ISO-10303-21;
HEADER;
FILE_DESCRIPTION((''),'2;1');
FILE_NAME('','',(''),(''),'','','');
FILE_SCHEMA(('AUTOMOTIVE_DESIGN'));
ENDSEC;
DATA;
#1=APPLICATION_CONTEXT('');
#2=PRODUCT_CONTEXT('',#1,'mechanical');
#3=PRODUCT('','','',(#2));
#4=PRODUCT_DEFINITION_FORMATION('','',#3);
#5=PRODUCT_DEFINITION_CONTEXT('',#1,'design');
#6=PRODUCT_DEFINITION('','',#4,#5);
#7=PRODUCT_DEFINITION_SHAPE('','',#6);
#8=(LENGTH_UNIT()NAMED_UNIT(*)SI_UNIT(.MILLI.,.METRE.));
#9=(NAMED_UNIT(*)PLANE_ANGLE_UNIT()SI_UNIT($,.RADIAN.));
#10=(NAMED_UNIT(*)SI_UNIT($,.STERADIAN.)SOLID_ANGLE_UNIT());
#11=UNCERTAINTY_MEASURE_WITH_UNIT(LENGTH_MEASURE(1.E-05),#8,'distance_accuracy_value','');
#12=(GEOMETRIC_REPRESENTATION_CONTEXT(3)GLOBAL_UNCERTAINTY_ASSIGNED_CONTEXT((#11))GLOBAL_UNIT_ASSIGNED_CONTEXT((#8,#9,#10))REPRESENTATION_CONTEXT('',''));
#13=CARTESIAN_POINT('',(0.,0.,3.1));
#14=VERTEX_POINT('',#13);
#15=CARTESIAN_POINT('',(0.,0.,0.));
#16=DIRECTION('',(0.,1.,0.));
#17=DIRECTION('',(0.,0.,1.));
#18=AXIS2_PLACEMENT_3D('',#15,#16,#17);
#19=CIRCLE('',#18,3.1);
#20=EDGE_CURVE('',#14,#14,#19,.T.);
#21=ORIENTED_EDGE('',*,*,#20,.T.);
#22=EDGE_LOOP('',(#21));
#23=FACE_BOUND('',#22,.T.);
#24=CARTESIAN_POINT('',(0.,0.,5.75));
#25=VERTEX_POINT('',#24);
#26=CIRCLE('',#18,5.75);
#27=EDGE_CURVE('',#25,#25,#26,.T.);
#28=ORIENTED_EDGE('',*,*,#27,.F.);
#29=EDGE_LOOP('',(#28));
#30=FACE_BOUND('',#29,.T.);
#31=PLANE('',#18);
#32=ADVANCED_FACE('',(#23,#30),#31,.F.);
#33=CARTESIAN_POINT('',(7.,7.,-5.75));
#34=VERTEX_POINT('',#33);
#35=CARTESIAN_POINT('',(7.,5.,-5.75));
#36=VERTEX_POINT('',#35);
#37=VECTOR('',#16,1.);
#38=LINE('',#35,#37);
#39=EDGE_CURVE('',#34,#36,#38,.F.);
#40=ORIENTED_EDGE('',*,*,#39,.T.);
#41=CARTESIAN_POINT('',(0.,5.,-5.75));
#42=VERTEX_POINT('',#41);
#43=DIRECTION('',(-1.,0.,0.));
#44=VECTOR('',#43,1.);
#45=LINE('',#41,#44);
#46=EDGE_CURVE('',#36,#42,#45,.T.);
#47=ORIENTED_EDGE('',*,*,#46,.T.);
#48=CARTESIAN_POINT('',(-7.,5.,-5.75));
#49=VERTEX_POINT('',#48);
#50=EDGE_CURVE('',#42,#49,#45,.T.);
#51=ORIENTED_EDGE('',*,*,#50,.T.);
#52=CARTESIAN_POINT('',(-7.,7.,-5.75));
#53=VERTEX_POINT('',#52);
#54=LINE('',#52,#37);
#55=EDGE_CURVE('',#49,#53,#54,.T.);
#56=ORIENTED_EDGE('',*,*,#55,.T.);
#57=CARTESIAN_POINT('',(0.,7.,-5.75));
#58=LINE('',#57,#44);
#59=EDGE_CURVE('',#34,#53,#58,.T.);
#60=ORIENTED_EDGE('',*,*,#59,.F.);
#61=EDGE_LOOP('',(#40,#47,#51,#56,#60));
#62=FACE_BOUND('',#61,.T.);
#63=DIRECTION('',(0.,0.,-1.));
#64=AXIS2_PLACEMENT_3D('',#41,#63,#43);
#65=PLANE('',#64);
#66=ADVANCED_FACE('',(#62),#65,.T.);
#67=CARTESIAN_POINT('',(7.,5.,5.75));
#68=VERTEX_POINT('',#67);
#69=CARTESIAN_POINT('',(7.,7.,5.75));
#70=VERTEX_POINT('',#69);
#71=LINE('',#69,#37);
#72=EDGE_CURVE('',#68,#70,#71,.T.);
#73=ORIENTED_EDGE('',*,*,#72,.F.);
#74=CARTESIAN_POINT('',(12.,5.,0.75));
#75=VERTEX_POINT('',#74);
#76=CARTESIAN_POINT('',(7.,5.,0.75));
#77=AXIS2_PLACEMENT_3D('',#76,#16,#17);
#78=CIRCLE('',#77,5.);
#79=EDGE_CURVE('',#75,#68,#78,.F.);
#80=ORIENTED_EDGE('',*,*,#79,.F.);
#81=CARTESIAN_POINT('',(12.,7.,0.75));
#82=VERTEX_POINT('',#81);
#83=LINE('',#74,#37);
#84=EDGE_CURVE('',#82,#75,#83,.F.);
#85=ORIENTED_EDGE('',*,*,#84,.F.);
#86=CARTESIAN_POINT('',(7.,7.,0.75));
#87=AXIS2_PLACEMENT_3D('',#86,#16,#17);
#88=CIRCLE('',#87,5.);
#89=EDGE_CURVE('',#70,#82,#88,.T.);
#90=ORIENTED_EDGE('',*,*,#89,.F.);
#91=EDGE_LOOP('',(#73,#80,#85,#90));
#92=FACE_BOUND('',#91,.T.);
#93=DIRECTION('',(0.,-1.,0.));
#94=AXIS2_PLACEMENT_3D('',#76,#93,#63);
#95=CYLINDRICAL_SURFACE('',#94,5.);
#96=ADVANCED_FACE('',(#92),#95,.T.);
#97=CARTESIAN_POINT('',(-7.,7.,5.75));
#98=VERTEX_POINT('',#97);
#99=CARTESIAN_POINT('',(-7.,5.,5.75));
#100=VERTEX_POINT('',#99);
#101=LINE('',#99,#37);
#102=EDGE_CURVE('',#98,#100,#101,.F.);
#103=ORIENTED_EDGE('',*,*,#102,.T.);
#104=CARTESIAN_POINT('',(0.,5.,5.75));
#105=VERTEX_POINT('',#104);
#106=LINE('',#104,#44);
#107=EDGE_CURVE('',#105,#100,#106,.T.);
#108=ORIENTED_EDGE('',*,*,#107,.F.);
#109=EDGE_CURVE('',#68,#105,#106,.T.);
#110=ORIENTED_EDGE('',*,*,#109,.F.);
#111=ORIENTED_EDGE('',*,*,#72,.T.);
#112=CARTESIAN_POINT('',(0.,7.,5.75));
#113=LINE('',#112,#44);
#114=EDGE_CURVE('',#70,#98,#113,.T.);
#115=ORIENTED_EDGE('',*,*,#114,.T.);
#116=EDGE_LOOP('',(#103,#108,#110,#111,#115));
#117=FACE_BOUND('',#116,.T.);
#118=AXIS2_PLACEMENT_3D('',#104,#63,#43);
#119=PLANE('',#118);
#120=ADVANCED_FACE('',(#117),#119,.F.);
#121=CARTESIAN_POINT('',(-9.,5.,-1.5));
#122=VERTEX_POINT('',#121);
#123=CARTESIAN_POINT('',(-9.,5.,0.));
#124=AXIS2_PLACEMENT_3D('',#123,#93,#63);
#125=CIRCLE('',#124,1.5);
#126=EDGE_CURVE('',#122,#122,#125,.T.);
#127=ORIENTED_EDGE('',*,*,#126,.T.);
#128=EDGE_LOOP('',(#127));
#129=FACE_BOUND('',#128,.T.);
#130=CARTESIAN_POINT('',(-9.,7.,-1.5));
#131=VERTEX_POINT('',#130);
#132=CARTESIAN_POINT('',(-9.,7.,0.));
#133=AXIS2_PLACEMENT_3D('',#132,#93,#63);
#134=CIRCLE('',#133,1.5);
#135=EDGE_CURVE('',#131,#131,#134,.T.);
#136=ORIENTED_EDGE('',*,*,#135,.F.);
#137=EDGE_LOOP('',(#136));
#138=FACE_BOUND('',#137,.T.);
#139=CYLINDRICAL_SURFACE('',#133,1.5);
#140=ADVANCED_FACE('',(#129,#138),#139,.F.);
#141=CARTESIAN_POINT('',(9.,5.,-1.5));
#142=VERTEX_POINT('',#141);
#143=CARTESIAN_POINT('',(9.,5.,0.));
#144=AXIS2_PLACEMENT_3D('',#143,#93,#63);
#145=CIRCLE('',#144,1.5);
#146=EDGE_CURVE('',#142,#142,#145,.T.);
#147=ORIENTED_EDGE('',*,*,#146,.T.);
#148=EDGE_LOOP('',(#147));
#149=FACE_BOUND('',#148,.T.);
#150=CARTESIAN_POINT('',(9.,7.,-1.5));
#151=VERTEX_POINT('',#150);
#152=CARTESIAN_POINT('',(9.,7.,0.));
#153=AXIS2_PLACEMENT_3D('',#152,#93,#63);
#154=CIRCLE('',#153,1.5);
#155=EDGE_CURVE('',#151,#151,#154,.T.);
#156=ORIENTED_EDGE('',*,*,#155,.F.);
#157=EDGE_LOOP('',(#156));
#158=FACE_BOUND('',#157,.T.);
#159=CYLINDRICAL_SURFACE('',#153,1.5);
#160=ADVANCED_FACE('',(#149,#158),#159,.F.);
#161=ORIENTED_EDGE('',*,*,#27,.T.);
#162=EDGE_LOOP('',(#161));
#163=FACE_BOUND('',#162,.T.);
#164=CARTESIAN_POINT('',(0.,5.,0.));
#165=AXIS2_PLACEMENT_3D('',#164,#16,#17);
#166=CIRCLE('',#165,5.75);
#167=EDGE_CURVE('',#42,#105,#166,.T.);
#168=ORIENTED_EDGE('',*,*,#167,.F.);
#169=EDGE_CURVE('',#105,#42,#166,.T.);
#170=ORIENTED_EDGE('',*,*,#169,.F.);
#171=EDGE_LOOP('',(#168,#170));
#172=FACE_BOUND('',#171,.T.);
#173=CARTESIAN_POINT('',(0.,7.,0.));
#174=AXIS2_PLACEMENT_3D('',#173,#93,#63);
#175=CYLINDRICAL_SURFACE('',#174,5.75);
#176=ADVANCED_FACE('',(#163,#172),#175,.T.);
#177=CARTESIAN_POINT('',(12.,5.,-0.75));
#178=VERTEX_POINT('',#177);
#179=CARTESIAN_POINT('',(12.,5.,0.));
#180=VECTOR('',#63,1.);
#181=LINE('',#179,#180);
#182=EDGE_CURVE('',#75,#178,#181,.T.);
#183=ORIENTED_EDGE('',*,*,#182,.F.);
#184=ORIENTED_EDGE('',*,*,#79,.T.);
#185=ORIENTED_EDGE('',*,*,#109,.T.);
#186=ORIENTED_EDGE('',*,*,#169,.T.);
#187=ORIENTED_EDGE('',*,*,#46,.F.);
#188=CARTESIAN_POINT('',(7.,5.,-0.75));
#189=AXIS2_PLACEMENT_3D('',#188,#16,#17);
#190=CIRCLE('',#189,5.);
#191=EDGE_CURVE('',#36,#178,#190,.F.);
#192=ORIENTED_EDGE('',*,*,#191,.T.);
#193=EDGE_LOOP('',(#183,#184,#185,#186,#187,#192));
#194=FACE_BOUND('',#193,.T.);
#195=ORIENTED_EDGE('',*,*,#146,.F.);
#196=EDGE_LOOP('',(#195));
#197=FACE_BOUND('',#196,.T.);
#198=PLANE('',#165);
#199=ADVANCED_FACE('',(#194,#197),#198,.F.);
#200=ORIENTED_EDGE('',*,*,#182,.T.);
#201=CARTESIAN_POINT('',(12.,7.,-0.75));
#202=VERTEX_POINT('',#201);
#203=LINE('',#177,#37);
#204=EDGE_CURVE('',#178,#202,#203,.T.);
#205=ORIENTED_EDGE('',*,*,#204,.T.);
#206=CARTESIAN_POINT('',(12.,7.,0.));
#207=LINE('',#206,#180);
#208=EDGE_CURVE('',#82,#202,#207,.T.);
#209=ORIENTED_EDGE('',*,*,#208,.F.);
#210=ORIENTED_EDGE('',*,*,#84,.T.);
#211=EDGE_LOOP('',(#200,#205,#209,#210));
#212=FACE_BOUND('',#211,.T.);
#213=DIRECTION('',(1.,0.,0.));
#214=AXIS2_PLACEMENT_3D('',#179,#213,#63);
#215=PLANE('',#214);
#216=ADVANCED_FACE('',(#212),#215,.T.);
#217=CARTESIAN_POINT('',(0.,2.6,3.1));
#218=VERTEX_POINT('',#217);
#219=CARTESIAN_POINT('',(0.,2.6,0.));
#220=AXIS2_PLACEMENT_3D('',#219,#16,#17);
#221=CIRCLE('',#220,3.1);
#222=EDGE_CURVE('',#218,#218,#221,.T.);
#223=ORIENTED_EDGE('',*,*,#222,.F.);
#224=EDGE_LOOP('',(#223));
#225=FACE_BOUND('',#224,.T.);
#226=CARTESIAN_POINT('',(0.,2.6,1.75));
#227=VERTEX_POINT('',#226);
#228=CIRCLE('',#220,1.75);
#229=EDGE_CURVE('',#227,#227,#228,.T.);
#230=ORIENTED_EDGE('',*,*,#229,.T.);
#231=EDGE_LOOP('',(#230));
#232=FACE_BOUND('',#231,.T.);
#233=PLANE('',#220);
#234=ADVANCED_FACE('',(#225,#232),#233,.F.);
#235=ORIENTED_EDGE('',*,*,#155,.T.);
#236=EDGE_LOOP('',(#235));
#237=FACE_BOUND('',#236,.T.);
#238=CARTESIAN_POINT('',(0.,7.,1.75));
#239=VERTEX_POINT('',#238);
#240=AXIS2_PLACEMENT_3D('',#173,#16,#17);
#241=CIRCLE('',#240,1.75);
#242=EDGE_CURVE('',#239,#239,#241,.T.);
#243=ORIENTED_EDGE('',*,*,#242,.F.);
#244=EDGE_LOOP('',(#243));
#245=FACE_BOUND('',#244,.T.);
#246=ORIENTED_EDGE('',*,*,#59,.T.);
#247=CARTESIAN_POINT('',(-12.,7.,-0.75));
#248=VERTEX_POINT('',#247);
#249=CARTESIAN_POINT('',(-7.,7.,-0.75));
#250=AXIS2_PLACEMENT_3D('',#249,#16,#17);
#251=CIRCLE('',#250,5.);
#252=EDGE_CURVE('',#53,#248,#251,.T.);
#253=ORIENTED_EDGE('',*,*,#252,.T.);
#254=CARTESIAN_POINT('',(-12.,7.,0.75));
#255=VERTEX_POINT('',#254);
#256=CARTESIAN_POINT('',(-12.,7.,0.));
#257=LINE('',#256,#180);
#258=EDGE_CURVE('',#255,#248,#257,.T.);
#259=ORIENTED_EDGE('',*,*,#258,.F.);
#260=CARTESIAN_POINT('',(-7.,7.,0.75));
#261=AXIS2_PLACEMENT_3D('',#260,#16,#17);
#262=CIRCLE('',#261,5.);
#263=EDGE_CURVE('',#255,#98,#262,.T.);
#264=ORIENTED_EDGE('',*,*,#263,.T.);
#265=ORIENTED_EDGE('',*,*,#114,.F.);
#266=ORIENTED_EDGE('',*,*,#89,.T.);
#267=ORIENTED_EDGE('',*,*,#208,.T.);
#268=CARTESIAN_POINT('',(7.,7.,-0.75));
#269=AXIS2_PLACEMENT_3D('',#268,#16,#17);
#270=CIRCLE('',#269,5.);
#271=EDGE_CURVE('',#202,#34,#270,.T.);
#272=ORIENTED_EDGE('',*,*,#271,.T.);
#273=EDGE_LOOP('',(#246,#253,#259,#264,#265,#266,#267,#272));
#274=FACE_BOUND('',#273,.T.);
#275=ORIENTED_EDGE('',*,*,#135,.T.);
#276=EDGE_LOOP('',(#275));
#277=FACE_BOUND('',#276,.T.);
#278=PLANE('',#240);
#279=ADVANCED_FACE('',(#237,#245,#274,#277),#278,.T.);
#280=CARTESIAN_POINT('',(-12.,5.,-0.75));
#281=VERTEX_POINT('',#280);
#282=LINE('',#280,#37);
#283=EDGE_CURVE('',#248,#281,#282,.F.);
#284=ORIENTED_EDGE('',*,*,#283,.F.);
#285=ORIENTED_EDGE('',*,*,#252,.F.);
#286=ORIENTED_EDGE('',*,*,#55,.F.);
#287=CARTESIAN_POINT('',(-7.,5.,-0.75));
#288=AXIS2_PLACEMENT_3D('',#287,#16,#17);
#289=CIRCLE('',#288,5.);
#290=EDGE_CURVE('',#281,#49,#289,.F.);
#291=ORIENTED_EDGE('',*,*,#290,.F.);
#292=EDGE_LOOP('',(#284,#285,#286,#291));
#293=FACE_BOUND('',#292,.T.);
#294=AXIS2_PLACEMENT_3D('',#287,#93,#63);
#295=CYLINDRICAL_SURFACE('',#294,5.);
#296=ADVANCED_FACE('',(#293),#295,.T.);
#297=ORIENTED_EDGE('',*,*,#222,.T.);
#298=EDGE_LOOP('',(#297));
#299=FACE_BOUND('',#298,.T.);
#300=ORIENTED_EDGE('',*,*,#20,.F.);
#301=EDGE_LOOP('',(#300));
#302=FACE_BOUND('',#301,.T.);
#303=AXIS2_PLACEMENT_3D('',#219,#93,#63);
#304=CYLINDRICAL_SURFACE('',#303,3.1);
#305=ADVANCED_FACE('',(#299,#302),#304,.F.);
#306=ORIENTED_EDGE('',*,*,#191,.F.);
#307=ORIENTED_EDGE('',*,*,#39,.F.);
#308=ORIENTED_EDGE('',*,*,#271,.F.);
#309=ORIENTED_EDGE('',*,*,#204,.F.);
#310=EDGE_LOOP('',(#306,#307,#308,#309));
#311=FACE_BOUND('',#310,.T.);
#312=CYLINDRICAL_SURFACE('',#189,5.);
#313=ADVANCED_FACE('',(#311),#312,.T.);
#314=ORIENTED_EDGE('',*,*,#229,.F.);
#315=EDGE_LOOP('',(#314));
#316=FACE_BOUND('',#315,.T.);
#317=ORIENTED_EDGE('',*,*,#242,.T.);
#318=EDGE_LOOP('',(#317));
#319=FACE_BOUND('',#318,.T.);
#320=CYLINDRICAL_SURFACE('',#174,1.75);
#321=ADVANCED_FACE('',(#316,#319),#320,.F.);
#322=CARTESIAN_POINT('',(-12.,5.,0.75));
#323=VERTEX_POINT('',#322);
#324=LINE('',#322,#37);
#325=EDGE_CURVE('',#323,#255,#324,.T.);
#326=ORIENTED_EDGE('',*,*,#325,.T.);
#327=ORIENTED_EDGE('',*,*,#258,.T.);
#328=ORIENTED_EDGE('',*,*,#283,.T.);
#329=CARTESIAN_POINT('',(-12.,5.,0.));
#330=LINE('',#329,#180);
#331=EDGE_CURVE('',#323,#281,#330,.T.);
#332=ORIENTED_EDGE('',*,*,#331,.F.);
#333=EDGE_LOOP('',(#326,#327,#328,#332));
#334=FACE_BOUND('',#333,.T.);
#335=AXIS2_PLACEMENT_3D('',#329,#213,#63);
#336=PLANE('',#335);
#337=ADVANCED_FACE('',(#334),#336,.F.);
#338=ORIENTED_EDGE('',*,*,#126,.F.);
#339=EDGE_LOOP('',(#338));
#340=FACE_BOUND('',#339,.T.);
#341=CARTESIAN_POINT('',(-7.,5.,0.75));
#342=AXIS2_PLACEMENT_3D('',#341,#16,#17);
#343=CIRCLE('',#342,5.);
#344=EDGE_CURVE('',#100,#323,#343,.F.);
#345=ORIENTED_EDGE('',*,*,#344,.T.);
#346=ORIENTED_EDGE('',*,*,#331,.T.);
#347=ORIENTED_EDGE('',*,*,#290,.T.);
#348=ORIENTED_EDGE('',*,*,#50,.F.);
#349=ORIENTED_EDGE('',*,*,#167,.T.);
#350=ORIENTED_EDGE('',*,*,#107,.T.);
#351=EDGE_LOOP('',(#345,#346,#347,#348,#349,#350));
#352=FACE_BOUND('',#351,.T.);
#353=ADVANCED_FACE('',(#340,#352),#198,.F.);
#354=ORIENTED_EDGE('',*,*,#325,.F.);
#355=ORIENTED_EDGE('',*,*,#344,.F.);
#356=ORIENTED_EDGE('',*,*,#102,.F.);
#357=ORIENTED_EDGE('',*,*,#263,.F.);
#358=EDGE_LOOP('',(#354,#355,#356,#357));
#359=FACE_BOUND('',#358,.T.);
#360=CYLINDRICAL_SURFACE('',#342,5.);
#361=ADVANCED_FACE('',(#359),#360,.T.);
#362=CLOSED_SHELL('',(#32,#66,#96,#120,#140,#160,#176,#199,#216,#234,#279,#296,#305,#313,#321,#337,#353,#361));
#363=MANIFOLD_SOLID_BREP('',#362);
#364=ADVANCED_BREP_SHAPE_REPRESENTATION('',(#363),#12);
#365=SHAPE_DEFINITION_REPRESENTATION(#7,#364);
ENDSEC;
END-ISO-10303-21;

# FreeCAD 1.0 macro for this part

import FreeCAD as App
import Part
import Sketcher
from FreeCAD import Vector
Q = App.Units.Quantity


def edges_at(feature, points):
    """Names of the edges that pass closest to the given points."""
    edges = feature.Shape.Edges
    near = lambda p: min(range(len(edges)), key=lambda i: edges[i].distToShape(Part.Vertex(*p))[0])
    return sorted({f"Edge{near(p) + 1}" for p in points})


def add_polygon(sketch, points):
    """Adds a closed chain of lines whose ends are joined by coincident constraints."""
    first, n = sketch.GeometryCount, len(points)
    for a, b in zip(points, points[1:] + points[:1]):
        sketch.addGeometry(Part.LineSegment(App.Vector(*a, 0), App.Vector(*b, 0)), False)
    for i in range(n):
        sketch.addConstraint(Sketcher.Constraint("Coincident", first + i, 2, first + (i + 1) % n, 1))

doc = App.newDocument("Part")
body = doc.addObject("PartDesign::Body", "Body")

# Sketch on XZ plane
sketch1 = doc.addObject("Sketcher::SketchObject", "Sketch")
body.addObject(sketch1)
sketch1.AttachmentSupport = (doc.XZ_Plane, [""])
sketch1.MapMode = "FlatFace"
sketch1.addGeometry(Part.Circle(Vector(0, 0, 0), Vector(0, 0, 1), 5.75), False)
sketch1.addGeometry(Part.Circle(Vector(0, 0, 0), Vector(0, 0, 1), 1.75), False)
sketch1.addConstraint(Sketcher.Constraint("Coincident", 0, 3, -1, 1))
sketch1.addConstraint(Sketcher.Constraint("Coincident", 1, 3, -1, 1))
sketch1.addConstraint(Sketcher.Constraint("Diameter", 0, Q("11.5 mm")))
sketch1.addConstraint(Sketcher.Constraint("Diameter", 1, Q("3.5 mm")))
pad1 = doc.addObject("PartDesign::Pad", "Pad")
body.addObject(pad1)
pad1.Profile = sketch1
pad1.Length = 7
pad1.Reversed = True

# Sketch on XZ plane
sketch2 = doc.addObject("Sketcher::SketchObject", "Sketch001")
body.addObject(sketch2)
sketch2.AttachmentSupport = (doc.XZ_Plane, [""])
sketch2.MapMode = "FlatFace"
sketch2.addGeometry(Part.Circle(Vector(0, 0, 0), Vector(0, 0, 1), 3.1), False)
sketch2.addConstraint(Sketcher.Constraint("Coincident", 0, 3, -1, 1))
sketch2.addConstraint(Sketcher.Constraint("Diameter", 0, Q("6.2 mm")))
pocket1 = doc.addObject("PartDesign::Pocket", "Pocket")
body.addObject(pocket1)
pocket1.Profile = sketch2
pocket1.Length = 2.6

# Sketch on XZ plane
sketch3 = doc.addObject("Sketcher::SketchObject", "Sketch002")
body.addObject(sketch3)
sketch3.AttachmentSupport = (doc.XZ_Plane, [""])
sketch3.MapMode = "FlatFace"
sketch3.AttachmentOffset = App.Placement(Vector(0, 0, -5), App.Rotation())
add_polygon(sketch3, [(-12, -5.75), (-12, 5.75), (12, 5.75), (12, -5.75)])  # lines 0-3
sketch3.addGeometry(Part.Circle(Vector(0, 0, 0), Vector(0, 0, 1), 1.75), False)  # 4
sketch3.addConstraint(Sketcher.Constraint("Vertical", 0))
sketch3.addConstraint(Sketcher.Constraint("Horizontal", 1))
sketch3.addConstraint(Sketcher.Constraint("Vertical", 2))
sketch3.addConstraint(Sketcher.Constraint("Horizontal", 3))
sketch3.addConstraint(Sketcher.Constraint("Coincident", 4, 3, -1, 1))
sketch3.addConstraint(Sketcher.Constraint("Symmetric", 0, 2, 2, 2, -1, 1))
sketch3.addConstraint(Sketcher.Constraint("Diameter", 4, Q("3.5 mm")))
sketch3.addConstraint(Sketcher.Constraint("DistanceX", 1, 1, 1, 2, Q("24 mm")))
sketch3.addConstraint(Sketcher.Constraint("DistanceY", 0, 1, 0, 2, Q("11.5 mm")))
pad2 = doc.addObject("PartDesign::Pad", "Pad001")
body.addObject(pad2)
pad2.Profile = sketch3
pad2.Length = 2
pad2.Reversed = True

# Sketch on XZ plane
sketch4 = doc.addObject("Sketcher::SketchObject", "Sketch003")
body.addObject(sketch4)
sketch4.AttachmentSupport = (doc.XZ_Plane, [""])
sketch4.MapMode = "FlatFace"
sketch4.AttachmentOffset = App.Placement(Vector(0, 0, -5), App.Rotation())
sketch4.addGeometry(Part.Circle(Vector(-9, 0, 0), Vector(0, 0, 1), 1.5), False)
sketch4.addGeometry(Part.Circle(Vector(9, 0, 0), Vector(0, 0, 1), 1.5), False)
sketch4.addConstraint(Sketcher.Constraint("Equal", 0, 1))
sketch4.addConstraint(Sketcher.Constraint("Symmetric", 0, 3, 1, 3, -1, 1))
sketch4.addConstraint(Sketcher.Constraint("PointOnObject", 0, 3, -1))
sketch4.addConstraint(Sketcher.Constraint("Diameter", 0, Q("3 mm")))
sketch4.addConstraint(Sketcher.Constraint("DistanceX", 0, 3, -1, 1, Q("9 mm")))
pocket2 = doc.addObject("PartDesign::Pocket", "Pocket001")
body.addObject(pocket2)
pocket2.Profile = sketch4
pocket2.Type = "ThroughAll"
doc.recompute()

fillet = doc.addObject("PartDesign::Fillet", "Fillet")
body.addObject(fillet)
fillet.Base = (pocket2, edges_at(pocket2, [
    (12, 6, 5.75),
    (-12, 6, 5.75),
    (-12, 6, -5.75),
    (12, 6, -5.75),
]))
fillet.Radius = 5

doc.recompute()
